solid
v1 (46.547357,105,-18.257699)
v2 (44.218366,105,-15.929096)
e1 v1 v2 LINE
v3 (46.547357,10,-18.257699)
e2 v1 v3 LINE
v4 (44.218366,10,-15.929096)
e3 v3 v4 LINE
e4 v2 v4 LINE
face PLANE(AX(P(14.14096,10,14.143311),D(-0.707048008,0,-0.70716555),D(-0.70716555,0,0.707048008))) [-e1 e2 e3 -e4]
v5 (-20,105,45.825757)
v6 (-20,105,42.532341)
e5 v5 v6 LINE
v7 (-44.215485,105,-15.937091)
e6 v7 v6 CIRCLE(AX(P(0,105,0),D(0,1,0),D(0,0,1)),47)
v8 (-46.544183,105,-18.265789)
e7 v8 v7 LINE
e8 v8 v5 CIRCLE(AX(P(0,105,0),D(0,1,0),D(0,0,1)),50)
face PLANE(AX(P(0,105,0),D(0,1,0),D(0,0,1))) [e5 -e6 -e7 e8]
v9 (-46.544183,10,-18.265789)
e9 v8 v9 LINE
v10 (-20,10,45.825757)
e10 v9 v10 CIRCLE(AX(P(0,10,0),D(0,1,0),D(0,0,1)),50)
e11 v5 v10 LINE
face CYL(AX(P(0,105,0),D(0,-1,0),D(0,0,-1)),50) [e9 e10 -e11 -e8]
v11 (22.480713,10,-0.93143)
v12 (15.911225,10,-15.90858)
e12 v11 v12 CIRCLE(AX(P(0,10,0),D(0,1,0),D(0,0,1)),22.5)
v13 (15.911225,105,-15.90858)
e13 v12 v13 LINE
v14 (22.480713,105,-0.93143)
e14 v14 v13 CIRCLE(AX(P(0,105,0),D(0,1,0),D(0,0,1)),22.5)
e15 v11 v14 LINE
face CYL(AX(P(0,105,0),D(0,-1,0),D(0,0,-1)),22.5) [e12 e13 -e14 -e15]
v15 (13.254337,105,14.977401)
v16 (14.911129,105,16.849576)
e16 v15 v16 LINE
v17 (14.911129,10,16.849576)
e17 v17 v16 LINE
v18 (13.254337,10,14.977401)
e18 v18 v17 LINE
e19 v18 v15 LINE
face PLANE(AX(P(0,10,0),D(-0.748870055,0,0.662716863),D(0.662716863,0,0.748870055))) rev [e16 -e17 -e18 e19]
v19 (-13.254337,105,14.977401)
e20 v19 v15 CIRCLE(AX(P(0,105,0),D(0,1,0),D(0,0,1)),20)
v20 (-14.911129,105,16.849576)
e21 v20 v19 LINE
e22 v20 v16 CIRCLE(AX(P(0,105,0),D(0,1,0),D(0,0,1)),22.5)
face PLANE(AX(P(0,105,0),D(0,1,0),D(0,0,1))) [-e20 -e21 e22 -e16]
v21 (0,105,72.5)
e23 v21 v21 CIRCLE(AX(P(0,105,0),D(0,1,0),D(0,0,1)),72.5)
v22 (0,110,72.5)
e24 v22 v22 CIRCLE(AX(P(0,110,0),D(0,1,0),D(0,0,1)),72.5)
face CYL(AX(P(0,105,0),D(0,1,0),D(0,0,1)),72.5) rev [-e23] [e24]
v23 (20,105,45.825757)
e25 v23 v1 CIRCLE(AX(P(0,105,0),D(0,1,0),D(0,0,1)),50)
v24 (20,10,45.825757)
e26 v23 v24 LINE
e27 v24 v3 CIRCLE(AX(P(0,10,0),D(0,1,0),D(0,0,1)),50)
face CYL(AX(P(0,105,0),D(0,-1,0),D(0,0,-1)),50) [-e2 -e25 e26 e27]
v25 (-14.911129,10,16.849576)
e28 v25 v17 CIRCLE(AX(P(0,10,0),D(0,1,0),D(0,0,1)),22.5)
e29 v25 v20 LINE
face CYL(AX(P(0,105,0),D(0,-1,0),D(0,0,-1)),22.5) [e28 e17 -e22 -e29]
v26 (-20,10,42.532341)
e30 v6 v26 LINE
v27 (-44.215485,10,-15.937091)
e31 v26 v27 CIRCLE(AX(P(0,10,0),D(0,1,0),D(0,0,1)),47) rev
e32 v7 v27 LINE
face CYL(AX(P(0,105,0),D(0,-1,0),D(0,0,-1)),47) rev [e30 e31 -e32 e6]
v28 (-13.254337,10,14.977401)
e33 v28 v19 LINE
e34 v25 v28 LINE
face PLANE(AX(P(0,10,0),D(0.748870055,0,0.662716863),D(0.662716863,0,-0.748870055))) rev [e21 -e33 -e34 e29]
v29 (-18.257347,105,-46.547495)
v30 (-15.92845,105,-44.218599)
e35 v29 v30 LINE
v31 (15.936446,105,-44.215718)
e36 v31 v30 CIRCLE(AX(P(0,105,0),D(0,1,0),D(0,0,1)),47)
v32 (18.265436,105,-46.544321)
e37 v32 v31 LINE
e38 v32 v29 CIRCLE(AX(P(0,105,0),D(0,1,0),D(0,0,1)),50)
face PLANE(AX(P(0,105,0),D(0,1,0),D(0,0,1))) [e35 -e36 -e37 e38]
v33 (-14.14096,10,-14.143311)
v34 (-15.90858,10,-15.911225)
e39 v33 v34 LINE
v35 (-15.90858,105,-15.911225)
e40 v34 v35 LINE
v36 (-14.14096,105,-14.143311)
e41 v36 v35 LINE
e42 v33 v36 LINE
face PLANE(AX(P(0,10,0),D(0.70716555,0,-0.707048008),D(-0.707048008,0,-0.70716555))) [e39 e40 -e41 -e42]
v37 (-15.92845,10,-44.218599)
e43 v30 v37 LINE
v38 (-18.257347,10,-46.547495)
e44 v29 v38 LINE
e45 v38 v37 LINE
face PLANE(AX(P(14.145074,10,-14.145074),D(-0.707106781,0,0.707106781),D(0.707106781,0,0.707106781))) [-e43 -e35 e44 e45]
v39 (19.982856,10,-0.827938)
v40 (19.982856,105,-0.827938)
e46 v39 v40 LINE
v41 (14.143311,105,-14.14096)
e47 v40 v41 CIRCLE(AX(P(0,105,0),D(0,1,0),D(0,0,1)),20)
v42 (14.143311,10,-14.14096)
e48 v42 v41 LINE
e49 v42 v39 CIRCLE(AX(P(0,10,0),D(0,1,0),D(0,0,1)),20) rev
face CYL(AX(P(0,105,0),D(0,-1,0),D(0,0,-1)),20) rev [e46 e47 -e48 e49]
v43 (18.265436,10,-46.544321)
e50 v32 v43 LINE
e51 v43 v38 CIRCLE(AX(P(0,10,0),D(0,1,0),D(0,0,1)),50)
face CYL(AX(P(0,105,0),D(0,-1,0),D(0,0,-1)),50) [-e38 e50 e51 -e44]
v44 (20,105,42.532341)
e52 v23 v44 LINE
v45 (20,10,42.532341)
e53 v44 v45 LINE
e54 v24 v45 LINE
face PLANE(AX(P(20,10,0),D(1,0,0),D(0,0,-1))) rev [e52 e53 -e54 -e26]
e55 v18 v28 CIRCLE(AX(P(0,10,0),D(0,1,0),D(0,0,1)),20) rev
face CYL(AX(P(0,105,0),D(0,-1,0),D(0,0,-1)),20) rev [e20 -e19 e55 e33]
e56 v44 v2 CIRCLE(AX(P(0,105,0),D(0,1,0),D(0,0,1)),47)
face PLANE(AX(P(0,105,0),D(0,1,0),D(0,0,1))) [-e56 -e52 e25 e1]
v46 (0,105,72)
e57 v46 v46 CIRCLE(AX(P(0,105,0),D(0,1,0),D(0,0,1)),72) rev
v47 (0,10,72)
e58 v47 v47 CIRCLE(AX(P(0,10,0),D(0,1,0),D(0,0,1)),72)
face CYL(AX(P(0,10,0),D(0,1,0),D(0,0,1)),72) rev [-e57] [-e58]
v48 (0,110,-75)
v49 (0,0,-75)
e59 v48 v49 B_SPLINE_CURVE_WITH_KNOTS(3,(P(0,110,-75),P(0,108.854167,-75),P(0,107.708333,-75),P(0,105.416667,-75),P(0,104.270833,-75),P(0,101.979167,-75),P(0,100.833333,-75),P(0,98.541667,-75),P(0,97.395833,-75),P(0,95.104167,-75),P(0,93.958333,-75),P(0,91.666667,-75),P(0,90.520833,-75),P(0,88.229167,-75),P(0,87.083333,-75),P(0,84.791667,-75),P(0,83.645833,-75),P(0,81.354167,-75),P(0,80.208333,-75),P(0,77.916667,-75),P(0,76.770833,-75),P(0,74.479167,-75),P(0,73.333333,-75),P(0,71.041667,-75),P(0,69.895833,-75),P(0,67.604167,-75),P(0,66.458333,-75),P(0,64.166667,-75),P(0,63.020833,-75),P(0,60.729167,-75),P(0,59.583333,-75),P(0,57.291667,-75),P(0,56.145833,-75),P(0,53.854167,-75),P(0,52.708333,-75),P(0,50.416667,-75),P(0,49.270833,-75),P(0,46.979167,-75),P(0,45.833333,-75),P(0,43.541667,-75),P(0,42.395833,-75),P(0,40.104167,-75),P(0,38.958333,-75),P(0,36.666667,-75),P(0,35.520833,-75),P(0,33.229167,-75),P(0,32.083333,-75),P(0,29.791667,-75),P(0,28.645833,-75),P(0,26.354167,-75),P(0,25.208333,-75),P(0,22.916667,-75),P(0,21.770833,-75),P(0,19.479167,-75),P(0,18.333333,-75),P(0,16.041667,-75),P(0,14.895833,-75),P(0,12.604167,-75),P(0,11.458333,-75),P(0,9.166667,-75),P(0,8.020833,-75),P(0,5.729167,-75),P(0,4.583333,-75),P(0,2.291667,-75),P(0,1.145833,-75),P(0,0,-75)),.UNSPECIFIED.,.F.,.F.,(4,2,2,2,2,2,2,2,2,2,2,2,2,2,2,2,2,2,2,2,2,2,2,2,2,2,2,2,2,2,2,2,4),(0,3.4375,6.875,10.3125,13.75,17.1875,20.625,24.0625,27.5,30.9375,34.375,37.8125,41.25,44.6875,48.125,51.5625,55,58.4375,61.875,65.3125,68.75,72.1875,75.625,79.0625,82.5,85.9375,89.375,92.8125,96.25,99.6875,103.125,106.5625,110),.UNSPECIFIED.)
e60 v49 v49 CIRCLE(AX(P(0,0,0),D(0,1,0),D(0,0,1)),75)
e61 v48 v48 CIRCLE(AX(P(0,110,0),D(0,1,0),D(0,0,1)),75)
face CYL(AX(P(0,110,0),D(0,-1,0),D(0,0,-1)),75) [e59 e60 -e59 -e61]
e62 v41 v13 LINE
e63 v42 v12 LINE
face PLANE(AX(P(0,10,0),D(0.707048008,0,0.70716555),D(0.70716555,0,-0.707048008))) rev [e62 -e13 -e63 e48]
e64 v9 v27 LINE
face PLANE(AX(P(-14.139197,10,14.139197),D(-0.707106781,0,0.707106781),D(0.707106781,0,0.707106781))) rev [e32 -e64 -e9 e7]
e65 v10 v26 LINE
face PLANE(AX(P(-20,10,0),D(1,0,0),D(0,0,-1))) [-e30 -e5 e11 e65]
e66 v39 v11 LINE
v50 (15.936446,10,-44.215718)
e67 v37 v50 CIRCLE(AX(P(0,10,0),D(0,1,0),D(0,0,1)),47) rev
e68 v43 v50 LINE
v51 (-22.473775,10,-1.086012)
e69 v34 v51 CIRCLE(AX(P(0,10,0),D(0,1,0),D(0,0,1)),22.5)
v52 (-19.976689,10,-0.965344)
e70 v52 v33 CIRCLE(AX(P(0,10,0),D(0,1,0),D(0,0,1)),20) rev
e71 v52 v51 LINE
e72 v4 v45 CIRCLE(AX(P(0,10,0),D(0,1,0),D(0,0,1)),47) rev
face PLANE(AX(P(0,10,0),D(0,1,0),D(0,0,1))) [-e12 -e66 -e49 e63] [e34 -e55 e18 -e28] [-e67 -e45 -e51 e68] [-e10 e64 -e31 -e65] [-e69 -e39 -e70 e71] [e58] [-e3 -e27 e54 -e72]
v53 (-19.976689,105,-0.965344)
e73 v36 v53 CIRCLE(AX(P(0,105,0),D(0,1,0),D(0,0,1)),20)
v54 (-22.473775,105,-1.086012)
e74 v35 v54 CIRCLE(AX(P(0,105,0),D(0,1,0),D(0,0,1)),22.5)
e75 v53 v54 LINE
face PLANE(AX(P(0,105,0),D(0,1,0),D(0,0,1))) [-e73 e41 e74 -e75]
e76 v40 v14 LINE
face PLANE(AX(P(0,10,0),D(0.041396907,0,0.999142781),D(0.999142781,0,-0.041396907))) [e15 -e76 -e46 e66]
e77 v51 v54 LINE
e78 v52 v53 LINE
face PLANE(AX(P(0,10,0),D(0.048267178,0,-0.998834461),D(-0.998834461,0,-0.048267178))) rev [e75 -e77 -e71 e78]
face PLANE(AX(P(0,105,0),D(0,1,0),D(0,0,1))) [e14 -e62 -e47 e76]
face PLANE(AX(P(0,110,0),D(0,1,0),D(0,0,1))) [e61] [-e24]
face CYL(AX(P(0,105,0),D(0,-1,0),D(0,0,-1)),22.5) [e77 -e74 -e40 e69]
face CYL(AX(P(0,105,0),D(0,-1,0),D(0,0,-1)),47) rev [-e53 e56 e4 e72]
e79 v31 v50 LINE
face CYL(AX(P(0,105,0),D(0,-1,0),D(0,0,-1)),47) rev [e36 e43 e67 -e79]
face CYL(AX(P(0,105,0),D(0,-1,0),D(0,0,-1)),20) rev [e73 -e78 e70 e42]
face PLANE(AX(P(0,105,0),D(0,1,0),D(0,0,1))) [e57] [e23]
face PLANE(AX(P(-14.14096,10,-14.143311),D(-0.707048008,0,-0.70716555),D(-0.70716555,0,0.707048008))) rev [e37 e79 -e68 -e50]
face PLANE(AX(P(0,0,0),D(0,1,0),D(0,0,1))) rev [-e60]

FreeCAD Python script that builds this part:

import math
import FreeCAD as App
import Part
import Sketcher
Q = App.Units.Quantity

doc = App.newDocument("Part")
params = doc.addObject("Spreadsheet::Sheet", "Params")
for row, (alias, value) in enumerate([
    ("sketch1_diameter", "150 mm"),
    ("pad1_length", "110 mm"),
    ("sketch2_diameter", "144 mm"),
    ("pocket1_length", "100 mm"),
    ("sketch3_diameter", "145 mm"),
    ("pocket2_length", "5 mm"),
    ("sketch4_diameter", "100 mm"),
    ("sketch4_diameter2", "94 mm"),
    ("pad2_length", "95 mm"),
    ("sketch5_diameter", "45 mm"),
    ("sketch5_diameter2", "40 mm"),
    ("pad3_length", "95 mm"),
    ("sketch6_radius", "20 mm"),
    ("sketch6_radius2", "22.5 mm"),
    ("sketch6_width", "40 mm"),
    ("sketch6_length", "20 mm"),
    ("sketch6_height", "27.4 mm"),
    ("pocket3_length", "95 mm"),
], start=1):
    params.set(f"A{row}", alias)
    params.set(f"B{row}", "=" + value)
    params.setAlias(f"B{row}", alias)

body = doc.addObject("PartDesign::Body", "Body")

# Sketch on XZ plane
sketch1 = doc.addObject("Sketcher::SketchObject", "Sketch")
body.addObject(sketch1)
sketch1.AttachmentSupport = (doc.XZ_Plane, [""])
sketch1.MapMode = "FlatFace"
sketch1.addGeometry(Part.Circle(App.Vector(0, 0, 0), App.Vector(0, 0, 1), 75), False)
sketch1.addConstraint([
    Sketcher.Constraint("Coincident", 0, 3, -1, 1),
    Sketcher.Constraint("Diameter", 0, 150.0),
])
sketch1.setExpression("Constraints[1]", "Params.sketch1_diameter")
pad1 = doc.addObject("PartDesign::Pad", "Pad")
body.addObject(pad1)
pad1.Profile = sketch1
pad1.setExpression("Length", "Params.pad1_length")
pad1.Reversed = True

# Sketch on XZ plane
sketch2 = doc.addObject("Sketcher::SketchObject", "Sketch001")
body.addObject(sketch2)
sketch2.AttachmentSupport = (doc.XZ_Plane, [""])
sketch2.MapMode = "FlatFace"
sketch2.AttachmentOffset = App.Placement(App.Vector(0, 0, -110), App.Rotation())
sketch2.addGeometry(Part.Circle(App.Vector(0, 0, 0), App.Vector(0, 0, 1), 72), False)
sketch2.addConstraint([
    Sketcher.Constraint("Coincident", 0, 3, -1, 1),
    Sketcher.Constraint("Diameter", 0, 144.0),
])
sketch2.setExpression("Constraints[1]", "Params.sketch2_diameter")
pocket1 = doc.addObject("PartDesign::Pocket", "Pocket")
body.addObject(pocket1)
pocket1.Profile = sketch2
pocket1.setExpression("Length", "Params.pocket1_length")
pocket1.Reversed = True

# Sketch on XZ plane
sketch3 = doc.addObject("Sketcher::SketchObject", "Sketch002")
body.addObject(sketch3)
sketch3.AttachmentSupport = (doc.XZ_Plane, [""])
sketch3.MapMode = "FlatFace"
sketch3.AttachmentOffset = App.Placement(App.Vector(0, 0, -110), App.Rotation())
sketch3.addGeometry(Part.Circle(App.Vector(0, 0, 0), App.Vector(0, 0, 1), 72), False)
sketch3.addConstraint([
    Sketcher.Constraint("Coincident", 0, 3, -1, 1),
    Sketcher.Constraint("Diameter", 0, 145.0),
])
sketch3.setExpression("Constraints[1]", "Params.sketch3_diameter")
pocket2 = doc.addObject("PartDesign::Pocket", "Pocket001")
body.addObject(pocket2)
pocket2.Profile = sketch3
pocket2.setExpression("Length", "Params.pocket2_length")
pocket2.Reversed = True

# Sketch on XZ plane
sketch4 = doc.addObject("Sketcher::SketchObject", "Sketch003")
body.addObject(sketch4)
sketch4.AttachmentSupport = (doc.XZ_Plane, [""])
sketch4.MapMode = "FlatFace"
sketch4.AttachmentOffset = App.Placement(App.Vector(0, 0, -10), App.Rotation())
sketch4.addGeometry([
    Part.Circle(App.Vector(0, 0, 0), App.Vector(0, 0, 1), 50),
    Part.Circle(App.Vector(0, 0, 0), App.Vector(0, 0, 1), 47),
], False)
sketch4.addConstraint([
    Sketcher.Constraint("Coincident", 0, 3, -1, 1),
    Sketcher.Constraint("Coincident", 1, 3, -1, 1),
    Sketcher.Constraint("Diameter", 0, 100.0),
    Sketcher.Constraint("Diameter", 1, 94.0),
])
sketch4.setExpression("Constraints[2]", "Params.sketch4_diameter")
sketch4.setExpression("Constraints[3]", "Params.sketch4_diameter2")
pad2 = doc.addObject("PartDesign::Pad", "Pad001")
body.addObject(pad2)
pad2.Profile = sketch4
pad2.setExpression("Length", "Params.pad2_length")
pad2.Reversed = True

# Sketch on XZ plane
sketch5 = doc.addObject("Sketcher::SketchObject", "Sketch004")
body.addObject(sketch5)
sketch5.AttachmentSupport = (doc.XZ_Plane, [""])
sketch5.MapMode = "FlatFace"
sketch5.AttachmentOffset = App.Placement(App.Vector(0, 0, -10), App.Rotation())
sketch5.addGeometry([
    Part.Circle(App.Vector(0, 0, 0), App.Vector(0, 0, 1), 22),
    Part.Circle(App.Vector(0, 0, 0), App.Vector(0, 0, 1), 20),
], False)
sketch5.addConstraint([
    Sketcher.Constraint("Coincident", 0, 3, -1, 1),
    Sketcher.Constraint("Coincident", 1, 3, -1, 1),
    Sketcher.Constraint("Diameter", 0, 45.0),
    Sketcher.Constraint("Diameter", 1, 40.0),
])
sketch5.setExpression("Constraints[2]", "Params.sketch5_diameter")
sketch5.setExpression("Constraints[3]", "Params.sketch5_diameter2")
pad3 = doc.addObject("PartDesign::Pad", "Pad002")
body.addObject(pad3)
pad3.Profile = sketch5
pad3.setExpression("Length", "Params.pad3_length")
pad3.Reversed = True

# Sketch on XZ plane
sketch6 = doc.addObject("Sketcher::SketchObject", "Sketch005")
body.addObject(sketch6)
sketch6.AttachmentSupport = (doc.XZ_Plane, [""])
sketch6.MapMode = "FlatFace"
sketch6.AttachmentOffset = App.Placement(App.Vector(0, 0, -10), App.Rotation())
sketch6.addGeometry([
    Part.LineSegment(App.Vector(-20, 22.6, 0), App.Vector(-20, 50, 0)),  # 0
    Part.LineSegment(App.Vector(-20, 50, 0), App.Vector(20, 50, 0)),  # 1
    Part.LineSegment(App.Vector(20, 50, 0), App.Vector(20, 22.6, 0)),  # 2
    Part.LineSegment(App.Vector(20, 22.6, 0), App.Vector(-20, 22.6, 0)),  # 3
    Part.LineSegment(App.Vector(-15.9861, -15.9888, 0), App.Vector(-15.9846, -15.9904, 0)),  # 4
    Part.LineSegment(App.Vector(-15.9846, -15.9904, 0), App.Vector(-2.2548, -30.545, 0)),  # 5
    Part.LineSegment(App.Vector(-2.2548, -30.545, 0), App.Vector(-21.2103, -49.5004, 0)),  # 6
    Part.LineSegment(App.Vector(-21.2103, -49.5004, 0), App.Vector(-35.3524, -35.3583, 0)),  # 7
    Part.LineSegment(App.Vector(-35.3524, -35.3583, 0), App.Vector(-49.4945, -21.2161, 0)),  # 8
    Part.LineSegment(App.Vector(-49.4945, -21.2161, 0), App.Vector(-29.7143, -1.4359, 0)),  # 9
    Part.LineSegment(App.Vector(-29.7143, -1.4359, 0), App.Vector(-15.9861, -15.9888, 0)),  # 10
    Part.LineSegment(App.Vector(2.486, -30.7675, 0), App.Vector(15.9978, -15.9951, 0)),  # 11
    Part.LineSegment(App.Vector(15.9978, -15.9951, 0), App.Vector(29.5095, -1.2226, 0)),  # 12
    Part.LineSegment(App.Vector(29.5095, -1.2226, 0), App.Vector(49.4992, -21.2091, 0)),  # 13
    Part.LineSegment(App.Vector(49.4992, -21.2091, 0), App.Vector(35.3583, -35.3524, 0)),  # 14
    Part.LineSegment(App.Vector(35.3583, -35.3524, 0), App.Vector(21.2173, -49.4957, 0)),  # 15
    Part.LineSegment(App.Vector(21.2173, -49.4957, 0), App.Vector(2.486, -30.7675, 0)),  # 16
    Part.ArcOfCircle(Part.Circle(App.Vector(0, 0, 0), App.Vector(0, 0, 1), 20), math.radians(132), math.radians(183)),  # 17
    Part.LineSegment(App.Vector(-19.9767, -0.9653, 0), App.Vector(-22.4738, -1.086, 0)),  # 18
    Part.ArcOfCircle(Part.Circle(App.Vector(0, 0, 0), App.Vector(0, 0, 1), 22.5), math.radians(132), math.radians(183)),  # 19
    Part.LineSegment(App.Vector(-14.9111, 16.8496, 0), App.Vector(-13.2543, 14.9774, 0)),  # 20
    Part.ArcOfCircle(Part.Circle(App.Vector(0, 0, 0), App.Vector(0, 0, 1), 20), math.radians(0), math.radians(48)),  # 21
    Part.LineSegment(App.Vector(13.2543, 14.9774, 0), App.Vector(14.9111, 16.8496, 0)),  # 22
    Part.ArcOfCircle(Part.Circle(App.Vector(0, 0, 0), App.Vector(0, 0, 1), 22.5), math.radians(0), math.radians(48)),  # 23
    Part.ArcOfCircle(Part.Circle(App.Vector(0, 0, 0), App.Vector(0, 0, 1), 22.5), math.radians(-2.37), math.radians(0)),  # 24
    Part.LineSegment(App.Vector(22.4807, -0.9314, 0), App.Vector(19.9829, -0.8279, 0)),  # 25
    Part.ArcOfCircle(Part.Circle(App.Vector(0, 0, 0), App.Vector(0, 0, 1), 20), math.radians(-2.37), math.radians(0)),  # 26
    Part.LineSegment(App.Vector(-15.9086, -15.9112, 0), App.Vector(-14.141, -14.1433, 0)),  # 27
    Part.ArcOfCircle(Part.Circle(App.Vector(0, 0, 0), App.Vector(0, 0, 1), 20), math.radians(-135), math.radians(-45)),  # 28
    Part.LineSegment(App.Vector(14.1433, -14.141, 0), App.Vector(15.9112, -15.9086, 0)),  # 29
    Part.ArcOfCircle(Part.Circle(App.Vector(0, 0, 0), App.Vector(0, 0, 1), 22.5), math.radians(-135), math.radians(-45)),  # 30
], False)
sketch6.addConstraint([
    Sketcher.Constraint("Coincident", 0, 2, 1, 1),
    Sketcher.Constraint("Coincident", 1, 2, 2, 1),
    Sketcher.Constraint("Coincident", 2, 2, 3, 1),
    Sketcher.Constraint("Coincident", 3, 2, 0, 1),
    Sketcher.Constraint("Coincident", 4, 2, 5, 1),
    Sketcher.Constraint("Coincident", 5, 2, 6, 1),
    Sketcher.Constraint("Coincident", 6, 2, 7, 1),
    Sketcher.Constraint("Coincident", 7, 2, 8, 1),
    Sketcher.Constraint("Coincident", 8, 2, 9, 1),
    Sketcher.Constraint("Coincident", 9, 2, 10, 1),
    Sketcher.Constraint("Coincident", 10, 2, 4, 1),
    Sketcher.Constraint("Coincident", 11, 2, 12, 1),
    Sketcher.Constraint("Coincident", 12, 2, 13, 1),
    Sketcher.Constraint("Coincident", 13, 2, 14, 1),
    Sketcher.Constraint("Coincident", 14, 2, 15, 1),
    Sketcher.Constraint("Coincident", 15, 2, 16, 1),
    Sketcher.Constraint("Coincident", 16, 2, 11, 1),
    Sketcher.Constraint("Coincident", 17, 2, 18, 1),
    Sketcher.Constraint("Coincident", 18, 2, 19, 2),
    Sketcher.Constraint("Coincident", 19, 1, 20, 1),
    Sketcher.Constraint("Coincident", 20, 2, 17, 1),
    Sketcher.Constraint("Coincident", 21, 2, 22, 1),
    Sketcher.Constraint("Coincident", 22, 2, 23, 2),
    Sketcher.Constraint("Tangent", 23, 1, 24, 2),
    Sketcher.Constraint("Coincident", 24, 1, 25, 1),
    Sketcher.Constraint("Coincident", 25, 2, 26, 1),
    Sketcher.Constraint("Tangent", 26, 2, 21, 1),
    Sketcher.Constraint("Coincident", 27, 2, 28, 1),
    Sketcher.Constraint("Coincident", 28, 2, 29, 1),
    Sketcher.Constraint("Coincident", 29, 2, 30, 2),
    Sketcher.Constraint("Coincident", 30, 1, 27, 1),
    Sketcher.Constraint("Vertical", 0),
    Sketcher.Constraint("Horizontal", 1),
    Sketcher.Constraint("Vertical", 2),
    Sketcher.Constraint("Horizontal", 3),
    Sketcher.Constraint("Coincident", 17, 3, -1, 1),
    Sketcher.Constraint("Coincident", 19, 3, -1, 1),
    Sketcher.Constraint("Coincident", 21, 3, -1, 1),
    Sketcher.Constraint("Coincident", 23, 3, -1, 1),
    Sketcher.Constraint("Coincident", 28, 3, -1, 1),
    Sketcher.Constraint("Coincident", 30, 3, -1, 1),
    Sketcher.Constraint("Equal", 17, 21),
    Sketcher.Constraint("Equal", 19, 23),
    Sketcher.Constraint("Equal", 23, 24),
    Sketcher.Constraint("Equal", 21, 26),
    Sketcher.Constraint("Equal", 26, 28),
    Sketcher.Constraint("Equal", 24, 30),
    Sketcher.Constraint("PointOnObject", 23, 1, -1),
    Sketcher.Constraint("PointOnObject", 26, 2, -1),
    Sketcher.Constraint("Parallel", 4, 5),
    Sketcher.Constraint("Perpendicular", 6, 7),
    Sketcher.Constraint("Parallel", 7, 8),
    Sketcher.Constraint("Perpendicular", 8, 9),
    Sketcher.Constraint("Parallel", 5, 10),
    Sketcher.Constraint("Parallel", 11, 12),
    Sketcher.Constraint("Perpendicular", 13, 14),
    Sketcher.Constraint("Parallel", 14, 15),
    Sketcher.Constraint("Perpendicular", 15, 16),
    Sketcher.Constraint("Perpendicular", 16, 27),
    Sketcher.Constraint("Perpendicular", 27, 29),
    Sketcher.Constraint("Horizontal", 20, 2, 21, 2),
    Sketcher.Constraint("Horizontal", 19, 1, 22, 2),
    Sketcher.Constraint("Vertical", 2, 2, 26, 2),
    Sketcher.Constraint("Equal", 7, 8),
    Sketcher.Constraint("Equal", 11, 12),
    Sketcher.Constraint("Equal", 8, 14),
    Sketcher.Constraint("Equal", 14, 15),
    Sketcher.Constraint("Radius", 17, 20.0),
    Sketcher.Constraint("Radius", 19, 22.5),
    Sketcher.Constraint("DistanceX", 1, 1, 1, 2, 40.0),
    Sketcher.Constraint("Angle", 6, Q("-135 deg")),
    Sketcher.Constraint("Distance", 7, 20.0),
    Sketcher.Constraint("DistanceY", 0, 1, 0, 2, 27.4),
    Sketcher.Constraint("DistanceY", -1, 1, 0, 2, 50.0),
    Sketcher.Constraint("Distance", 5, 20.008502),
    Sketcher.Constraint("DistanceX", 7, 2, -1, 1, 35.3524),
    Sketcher.Constraint("DistanceY", 9, 2, -1, 1, 1.435899),
    Sketcher.Constraint("DistanceY", 14, 2, -1, 1, 35.3524),
    Sketcher.Constraint("DistanceY", -1, 1, 20, 2, 14.977401),
    Sketcher.Constraint("DistanceY", 6, 2, 15, 2, 0.004702),
    Sketcher.Constraint("DistanceY", 27, 2, 18, 2, 13.057299),
    Sketcher.Constraint("DistanceX", 28, 2, 24, 1, 8.337402),
    Sketcher.Constraint("Distance", 9, 27.973488),
    Sketcher.Constraint("DistanceY", 4, 2, -1, 1, 15.990431),
    Sketcher.Constraint("DistanceX", -1, 1, 11, 2, 15.997751),
    Sketcher.Constraint("DistanceY", 11, 2, -1, 1, 15.995092),
    Sketcher.Constraint("DistanceY", 12, 2, -1, 1, 1.222649),
    Sketcher.Constraint("DistanceX", 17, 2, -1, 1, 19.976689),
    Sketcher.Constraint("DistanceY", 18, 2, -1, 1, 1.086012),
    Sketcher.Constraint("DistanceX", 19, 1, -1, 1, 14.911129),
    Sketcher.Constraint("DistanceY", 24, 1, -1, 1, 0.93143),
    Sketcher.Constraint("DistanceY", 25, 2, -1, 1, 0.827938),
    Sketcher.Constraint("DistanceY", 5, 2, 10, 2, 14.556189),
])
sketch6.setExpression("Constraints[67]", "Params.sketch6_radius")
sketch6.setExpression("Constraints[68]", "Params.sketch6_radius2")
sketch6.setExpression("Constraints[69]", "Params.sketch6_width")
sketch6.setExpression("Constraints[71]", "Params.sketch6_length")
sketch6.setExpression("Constraints[72]", "Params.sketch6_height")
pocket3 = doc.addObject("PartDesign::Pocket", "Pocket002")
body.addObject(pocket3)
pocket3.Profile = sketch6
pocket3.setExpression("Length", "Params.pocket3_length")

doc.recompute()
